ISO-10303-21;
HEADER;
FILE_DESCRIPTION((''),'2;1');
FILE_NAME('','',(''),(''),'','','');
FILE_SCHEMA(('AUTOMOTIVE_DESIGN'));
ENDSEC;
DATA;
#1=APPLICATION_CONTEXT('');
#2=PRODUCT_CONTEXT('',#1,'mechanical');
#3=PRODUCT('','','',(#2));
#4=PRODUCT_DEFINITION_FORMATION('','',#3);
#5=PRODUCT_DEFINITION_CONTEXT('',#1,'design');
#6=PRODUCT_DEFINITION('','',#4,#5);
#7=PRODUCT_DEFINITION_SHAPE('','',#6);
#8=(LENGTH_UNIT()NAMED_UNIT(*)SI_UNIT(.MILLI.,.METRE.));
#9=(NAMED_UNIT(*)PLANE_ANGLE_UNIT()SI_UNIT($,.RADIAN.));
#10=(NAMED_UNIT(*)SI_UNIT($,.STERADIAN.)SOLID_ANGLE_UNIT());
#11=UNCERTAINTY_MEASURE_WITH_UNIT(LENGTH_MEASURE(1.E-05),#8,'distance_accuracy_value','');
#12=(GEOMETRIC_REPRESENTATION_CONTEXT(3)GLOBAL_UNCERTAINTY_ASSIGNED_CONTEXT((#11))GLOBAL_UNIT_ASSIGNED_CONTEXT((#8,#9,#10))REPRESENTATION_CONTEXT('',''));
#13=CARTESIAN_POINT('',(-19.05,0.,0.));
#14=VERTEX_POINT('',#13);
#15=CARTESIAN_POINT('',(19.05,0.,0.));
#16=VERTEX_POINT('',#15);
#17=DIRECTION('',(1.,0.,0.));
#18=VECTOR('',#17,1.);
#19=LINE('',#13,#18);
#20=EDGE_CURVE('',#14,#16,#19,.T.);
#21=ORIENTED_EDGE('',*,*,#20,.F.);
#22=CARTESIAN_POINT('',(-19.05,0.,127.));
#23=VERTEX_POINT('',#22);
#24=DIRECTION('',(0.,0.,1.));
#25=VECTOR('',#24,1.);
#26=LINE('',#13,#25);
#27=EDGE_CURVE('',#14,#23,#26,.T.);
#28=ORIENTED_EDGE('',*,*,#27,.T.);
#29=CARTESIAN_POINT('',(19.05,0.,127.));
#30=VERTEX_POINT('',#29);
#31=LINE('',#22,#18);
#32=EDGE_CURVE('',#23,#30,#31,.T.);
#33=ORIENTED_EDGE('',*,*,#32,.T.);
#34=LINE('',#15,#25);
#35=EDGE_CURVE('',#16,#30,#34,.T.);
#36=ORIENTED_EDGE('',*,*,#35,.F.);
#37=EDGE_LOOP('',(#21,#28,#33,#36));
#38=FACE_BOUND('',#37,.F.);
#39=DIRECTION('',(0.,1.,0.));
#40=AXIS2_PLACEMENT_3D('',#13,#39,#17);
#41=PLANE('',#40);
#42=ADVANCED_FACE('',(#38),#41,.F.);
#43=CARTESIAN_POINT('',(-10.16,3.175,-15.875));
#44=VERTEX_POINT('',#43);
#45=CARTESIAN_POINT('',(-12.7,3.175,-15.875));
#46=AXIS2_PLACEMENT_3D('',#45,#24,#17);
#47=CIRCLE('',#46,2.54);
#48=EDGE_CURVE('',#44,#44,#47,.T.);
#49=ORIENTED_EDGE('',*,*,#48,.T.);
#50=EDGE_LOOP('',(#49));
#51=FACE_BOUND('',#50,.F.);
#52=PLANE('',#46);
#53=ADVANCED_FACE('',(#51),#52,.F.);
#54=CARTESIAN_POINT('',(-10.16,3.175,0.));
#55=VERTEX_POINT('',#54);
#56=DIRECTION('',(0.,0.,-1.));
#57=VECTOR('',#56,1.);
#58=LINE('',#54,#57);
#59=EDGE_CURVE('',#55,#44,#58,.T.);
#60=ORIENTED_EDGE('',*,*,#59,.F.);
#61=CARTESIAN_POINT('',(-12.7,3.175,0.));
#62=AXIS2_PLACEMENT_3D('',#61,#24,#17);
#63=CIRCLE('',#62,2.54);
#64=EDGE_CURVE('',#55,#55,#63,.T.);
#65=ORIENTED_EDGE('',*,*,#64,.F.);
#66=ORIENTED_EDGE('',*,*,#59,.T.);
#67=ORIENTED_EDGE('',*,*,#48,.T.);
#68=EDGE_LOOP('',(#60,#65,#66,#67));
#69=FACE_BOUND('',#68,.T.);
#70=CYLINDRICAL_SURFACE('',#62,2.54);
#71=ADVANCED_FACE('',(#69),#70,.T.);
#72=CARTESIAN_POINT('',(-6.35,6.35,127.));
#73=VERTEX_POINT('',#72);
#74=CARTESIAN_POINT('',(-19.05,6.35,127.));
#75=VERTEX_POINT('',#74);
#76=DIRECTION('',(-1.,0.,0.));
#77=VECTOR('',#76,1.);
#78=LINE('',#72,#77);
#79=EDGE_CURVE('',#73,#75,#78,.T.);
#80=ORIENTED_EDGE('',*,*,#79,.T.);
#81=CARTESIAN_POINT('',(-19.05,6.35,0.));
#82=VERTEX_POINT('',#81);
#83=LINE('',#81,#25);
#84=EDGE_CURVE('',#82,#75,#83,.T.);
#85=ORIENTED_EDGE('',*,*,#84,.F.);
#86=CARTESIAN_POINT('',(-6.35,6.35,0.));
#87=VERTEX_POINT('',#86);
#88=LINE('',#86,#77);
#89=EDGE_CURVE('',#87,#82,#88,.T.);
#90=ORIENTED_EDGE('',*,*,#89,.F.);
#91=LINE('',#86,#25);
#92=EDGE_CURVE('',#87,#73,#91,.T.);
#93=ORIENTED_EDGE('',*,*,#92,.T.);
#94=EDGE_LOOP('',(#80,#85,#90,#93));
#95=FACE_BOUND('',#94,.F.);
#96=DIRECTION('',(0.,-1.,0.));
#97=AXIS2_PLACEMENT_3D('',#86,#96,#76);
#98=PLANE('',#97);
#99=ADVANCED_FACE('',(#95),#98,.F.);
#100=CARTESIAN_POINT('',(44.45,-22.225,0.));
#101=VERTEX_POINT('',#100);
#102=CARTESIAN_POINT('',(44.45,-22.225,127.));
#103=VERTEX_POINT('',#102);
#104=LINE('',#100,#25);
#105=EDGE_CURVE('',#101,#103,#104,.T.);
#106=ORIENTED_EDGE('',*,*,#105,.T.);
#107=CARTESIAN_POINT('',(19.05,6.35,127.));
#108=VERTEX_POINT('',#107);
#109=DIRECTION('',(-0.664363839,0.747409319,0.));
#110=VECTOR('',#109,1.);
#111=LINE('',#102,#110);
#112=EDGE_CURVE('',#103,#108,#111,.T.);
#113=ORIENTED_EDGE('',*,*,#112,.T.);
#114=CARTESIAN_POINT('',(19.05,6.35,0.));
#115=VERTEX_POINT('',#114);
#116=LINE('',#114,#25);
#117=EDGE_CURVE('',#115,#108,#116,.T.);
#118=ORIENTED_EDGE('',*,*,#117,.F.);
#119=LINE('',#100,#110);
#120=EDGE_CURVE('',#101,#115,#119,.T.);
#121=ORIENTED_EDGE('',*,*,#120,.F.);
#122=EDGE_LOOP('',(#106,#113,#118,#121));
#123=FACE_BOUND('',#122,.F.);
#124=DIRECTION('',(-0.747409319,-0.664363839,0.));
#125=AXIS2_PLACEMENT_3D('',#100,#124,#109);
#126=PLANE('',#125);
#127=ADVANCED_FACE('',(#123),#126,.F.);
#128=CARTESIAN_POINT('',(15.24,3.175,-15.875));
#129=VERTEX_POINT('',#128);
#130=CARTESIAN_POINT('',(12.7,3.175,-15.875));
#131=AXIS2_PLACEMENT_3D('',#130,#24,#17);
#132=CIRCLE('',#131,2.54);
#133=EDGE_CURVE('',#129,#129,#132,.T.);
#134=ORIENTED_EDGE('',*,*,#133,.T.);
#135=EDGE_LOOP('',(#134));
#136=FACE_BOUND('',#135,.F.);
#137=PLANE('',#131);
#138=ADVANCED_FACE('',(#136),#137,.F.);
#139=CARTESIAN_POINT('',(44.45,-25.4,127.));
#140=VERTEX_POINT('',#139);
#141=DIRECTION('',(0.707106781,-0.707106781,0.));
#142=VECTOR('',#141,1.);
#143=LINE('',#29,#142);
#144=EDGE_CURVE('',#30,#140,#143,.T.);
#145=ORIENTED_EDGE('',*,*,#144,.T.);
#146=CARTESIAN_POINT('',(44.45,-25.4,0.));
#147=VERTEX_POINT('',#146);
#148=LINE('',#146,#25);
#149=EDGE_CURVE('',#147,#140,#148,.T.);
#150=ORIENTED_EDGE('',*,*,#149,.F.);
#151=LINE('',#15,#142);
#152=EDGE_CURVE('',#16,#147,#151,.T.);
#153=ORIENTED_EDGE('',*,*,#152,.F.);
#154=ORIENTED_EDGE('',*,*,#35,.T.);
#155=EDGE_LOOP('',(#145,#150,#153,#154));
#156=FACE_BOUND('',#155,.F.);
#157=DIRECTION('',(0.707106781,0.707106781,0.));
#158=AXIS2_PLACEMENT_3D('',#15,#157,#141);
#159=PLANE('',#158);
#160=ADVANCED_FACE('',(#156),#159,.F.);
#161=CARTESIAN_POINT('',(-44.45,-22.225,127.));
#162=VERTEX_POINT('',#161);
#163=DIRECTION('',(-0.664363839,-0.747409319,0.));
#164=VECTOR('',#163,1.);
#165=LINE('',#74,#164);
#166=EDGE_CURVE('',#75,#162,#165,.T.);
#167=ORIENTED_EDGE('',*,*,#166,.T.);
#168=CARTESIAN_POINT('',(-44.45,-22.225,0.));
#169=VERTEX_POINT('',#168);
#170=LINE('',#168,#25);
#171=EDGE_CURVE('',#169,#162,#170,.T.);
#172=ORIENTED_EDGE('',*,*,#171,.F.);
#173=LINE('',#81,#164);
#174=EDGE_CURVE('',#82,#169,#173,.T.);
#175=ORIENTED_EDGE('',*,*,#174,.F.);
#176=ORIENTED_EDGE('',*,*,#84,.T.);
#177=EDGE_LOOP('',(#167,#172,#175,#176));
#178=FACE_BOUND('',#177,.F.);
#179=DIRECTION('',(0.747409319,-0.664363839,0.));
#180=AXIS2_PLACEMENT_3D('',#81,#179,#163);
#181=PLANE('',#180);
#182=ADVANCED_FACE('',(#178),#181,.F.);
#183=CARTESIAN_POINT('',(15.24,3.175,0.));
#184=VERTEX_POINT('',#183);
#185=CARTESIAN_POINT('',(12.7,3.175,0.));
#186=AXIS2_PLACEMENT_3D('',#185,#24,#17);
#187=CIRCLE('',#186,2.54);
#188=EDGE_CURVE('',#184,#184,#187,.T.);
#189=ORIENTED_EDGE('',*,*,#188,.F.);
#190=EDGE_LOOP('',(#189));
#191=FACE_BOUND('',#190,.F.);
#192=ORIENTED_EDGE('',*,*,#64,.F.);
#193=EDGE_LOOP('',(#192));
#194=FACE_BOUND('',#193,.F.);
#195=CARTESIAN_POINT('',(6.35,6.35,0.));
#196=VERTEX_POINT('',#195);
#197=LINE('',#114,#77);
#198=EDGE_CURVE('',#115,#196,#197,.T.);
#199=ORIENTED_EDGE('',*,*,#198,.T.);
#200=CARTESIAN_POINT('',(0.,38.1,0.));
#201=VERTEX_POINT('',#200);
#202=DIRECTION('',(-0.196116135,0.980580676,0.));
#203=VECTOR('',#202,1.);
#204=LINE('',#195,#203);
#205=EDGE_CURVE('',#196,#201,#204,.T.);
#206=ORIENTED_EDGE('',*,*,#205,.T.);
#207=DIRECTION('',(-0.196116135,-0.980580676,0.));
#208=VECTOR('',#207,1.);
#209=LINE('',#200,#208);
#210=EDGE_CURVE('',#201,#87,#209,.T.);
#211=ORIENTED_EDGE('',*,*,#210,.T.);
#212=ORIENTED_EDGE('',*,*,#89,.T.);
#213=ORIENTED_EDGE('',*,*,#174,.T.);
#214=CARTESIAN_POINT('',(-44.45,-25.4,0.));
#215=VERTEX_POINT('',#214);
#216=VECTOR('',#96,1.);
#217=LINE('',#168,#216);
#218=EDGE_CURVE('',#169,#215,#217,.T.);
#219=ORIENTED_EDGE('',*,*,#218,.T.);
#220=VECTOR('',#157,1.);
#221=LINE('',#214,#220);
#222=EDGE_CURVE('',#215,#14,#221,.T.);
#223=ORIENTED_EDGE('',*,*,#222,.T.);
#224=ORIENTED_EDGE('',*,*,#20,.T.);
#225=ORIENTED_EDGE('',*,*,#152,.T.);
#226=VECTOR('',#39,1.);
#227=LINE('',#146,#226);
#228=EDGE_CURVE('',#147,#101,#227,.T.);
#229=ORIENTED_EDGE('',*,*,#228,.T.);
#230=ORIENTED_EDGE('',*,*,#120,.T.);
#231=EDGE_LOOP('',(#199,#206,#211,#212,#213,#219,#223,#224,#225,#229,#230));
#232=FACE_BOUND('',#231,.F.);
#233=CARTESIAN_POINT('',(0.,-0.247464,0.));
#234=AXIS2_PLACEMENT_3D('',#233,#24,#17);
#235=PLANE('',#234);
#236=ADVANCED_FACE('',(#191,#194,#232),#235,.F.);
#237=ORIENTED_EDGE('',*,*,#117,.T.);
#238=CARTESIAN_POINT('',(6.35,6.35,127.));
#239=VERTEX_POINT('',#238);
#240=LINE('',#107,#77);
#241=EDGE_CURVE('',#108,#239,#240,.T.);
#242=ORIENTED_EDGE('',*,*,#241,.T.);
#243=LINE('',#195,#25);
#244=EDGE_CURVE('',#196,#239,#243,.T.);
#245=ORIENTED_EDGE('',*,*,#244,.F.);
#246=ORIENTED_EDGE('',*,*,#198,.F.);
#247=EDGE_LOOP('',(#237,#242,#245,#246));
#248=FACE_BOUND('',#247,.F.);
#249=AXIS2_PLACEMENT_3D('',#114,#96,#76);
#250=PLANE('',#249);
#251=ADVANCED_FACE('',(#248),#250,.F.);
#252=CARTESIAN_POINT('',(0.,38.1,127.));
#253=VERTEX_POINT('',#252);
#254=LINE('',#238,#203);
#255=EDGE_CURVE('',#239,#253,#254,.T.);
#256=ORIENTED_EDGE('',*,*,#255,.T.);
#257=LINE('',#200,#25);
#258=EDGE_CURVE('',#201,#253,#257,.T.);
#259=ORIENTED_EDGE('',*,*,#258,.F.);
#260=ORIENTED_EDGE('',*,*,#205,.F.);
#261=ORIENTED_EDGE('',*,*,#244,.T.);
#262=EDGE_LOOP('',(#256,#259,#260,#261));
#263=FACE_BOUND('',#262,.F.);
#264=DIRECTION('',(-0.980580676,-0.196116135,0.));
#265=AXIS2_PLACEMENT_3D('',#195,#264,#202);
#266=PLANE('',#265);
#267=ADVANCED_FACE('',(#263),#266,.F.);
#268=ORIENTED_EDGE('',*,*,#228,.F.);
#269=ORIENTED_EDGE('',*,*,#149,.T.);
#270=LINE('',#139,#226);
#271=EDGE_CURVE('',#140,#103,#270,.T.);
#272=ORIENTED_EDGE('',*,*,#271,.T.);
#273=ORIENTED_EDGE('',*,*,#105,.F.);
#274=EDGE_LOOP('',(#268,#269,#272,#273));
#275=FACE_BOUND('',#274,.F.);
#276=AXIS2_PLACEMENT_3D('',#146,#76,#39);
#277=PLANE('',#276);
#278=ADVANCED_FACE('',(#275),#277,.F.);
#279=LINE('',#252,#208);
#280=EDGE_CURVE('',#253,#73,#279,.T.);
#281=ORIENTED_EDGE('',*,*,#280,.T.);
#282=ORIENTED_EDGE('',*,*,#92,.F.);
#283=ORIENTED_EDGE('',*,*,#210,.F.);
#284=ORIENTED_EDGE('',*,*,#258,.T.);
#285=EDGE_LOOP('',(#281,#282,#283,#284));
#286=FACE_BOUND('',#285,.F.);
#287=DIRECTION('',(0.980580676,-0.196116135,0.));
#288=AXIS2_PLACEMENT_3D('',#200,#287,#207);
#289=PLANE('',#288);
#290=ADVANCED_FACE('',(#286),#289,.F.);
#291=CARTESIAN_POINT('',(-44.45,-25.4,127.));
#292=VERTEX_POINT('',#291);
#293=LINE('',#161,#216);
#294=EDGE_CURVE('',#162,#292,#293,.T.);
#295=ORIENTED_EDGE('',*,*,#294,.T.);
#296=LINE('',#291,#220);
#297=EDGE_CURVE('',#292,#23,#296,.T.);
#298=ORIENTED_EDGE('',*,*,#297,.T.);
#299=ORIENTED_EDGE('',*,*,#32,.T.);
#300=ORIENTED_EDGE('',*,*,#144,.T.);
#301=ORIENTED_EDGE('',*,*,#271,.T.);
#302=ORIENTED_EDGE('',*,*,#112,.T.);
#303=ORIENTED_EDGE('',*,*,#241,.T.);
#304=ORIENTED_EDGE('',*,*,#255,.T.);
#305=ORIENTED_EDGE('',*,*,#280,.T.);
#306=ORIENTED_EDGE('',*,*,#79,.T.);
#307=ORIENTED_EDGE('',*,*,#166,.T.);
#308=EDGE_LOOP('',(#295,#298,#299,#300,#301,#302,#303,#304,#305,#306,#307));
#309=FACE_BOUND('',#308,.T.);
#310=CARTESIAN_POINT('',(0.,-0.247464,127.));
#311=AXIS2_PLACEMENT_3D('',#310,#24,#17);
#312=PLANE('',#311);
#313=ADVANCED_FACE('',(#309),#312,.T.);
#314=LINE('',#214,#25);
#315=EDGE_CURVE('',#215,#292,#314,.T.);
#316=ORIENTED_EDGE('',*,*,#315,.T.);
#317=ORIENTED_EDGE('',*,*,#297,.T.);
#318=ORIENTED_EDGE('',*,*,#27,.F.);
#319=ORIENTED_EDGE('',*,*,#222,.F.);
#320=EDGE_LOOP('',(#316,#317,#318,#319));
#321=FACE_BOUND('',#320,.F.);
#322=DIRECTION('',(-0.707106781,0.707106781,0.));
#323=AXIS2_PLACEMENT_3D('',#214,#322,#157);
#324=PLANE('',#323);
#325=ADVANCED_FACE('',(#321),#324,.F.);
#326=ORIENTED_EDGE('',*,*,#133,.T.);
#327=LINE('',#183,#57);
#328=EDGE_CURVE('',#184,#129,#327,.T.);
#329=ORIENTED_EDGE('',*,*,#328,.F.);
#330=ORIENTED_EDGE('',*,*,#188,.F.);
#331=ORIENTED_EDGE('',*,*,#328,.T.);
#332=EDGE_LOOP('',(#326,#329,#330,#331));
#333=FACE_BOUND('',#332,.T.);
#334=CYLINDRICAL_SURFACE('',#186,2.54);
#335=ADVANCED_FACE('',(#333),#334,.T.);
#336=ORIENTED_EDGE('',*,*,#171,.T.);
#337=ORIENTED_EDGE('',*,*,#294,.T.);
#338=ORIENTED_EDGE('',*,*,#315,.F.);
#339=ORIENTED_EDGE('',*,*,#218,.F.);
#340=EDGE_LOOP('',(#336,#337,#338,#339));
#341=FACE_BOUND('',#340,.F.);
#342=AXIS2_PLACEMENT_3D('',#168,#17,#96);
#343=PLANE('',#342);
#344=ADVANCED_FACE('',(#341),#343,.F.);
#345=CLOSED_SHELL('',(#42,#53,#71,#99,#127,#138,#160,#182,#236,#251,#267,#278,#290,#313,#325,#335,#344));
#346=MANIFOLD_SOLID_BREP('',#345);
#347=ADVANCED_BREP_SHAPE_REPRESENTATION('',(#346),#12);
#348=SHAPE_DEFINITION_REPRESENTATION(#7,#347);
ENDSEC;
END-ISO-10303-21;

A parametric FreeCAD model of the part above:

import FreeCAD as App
import Part
import Sketcher
from FreeCAD import Vector
Q = App.Units.Quantity


def add_polygon(sketch, points):
    """Adds a closed chain of lines whose ends are joined by coincident constraints."""
    first, n = sketch.GeometryCount, len(points)
    for a, b in zip(points, points[1:] + points[:1]):
        sketch.addGeometry(Part.LineSegment(App.Vector(*a, 0), App.Vector(*b, 0)), False)
    for i in range(n):
        sketch.addConstraint(Sketcher.Constraint("Coincident", first + i, 2, first + (i + 1) % n, 1))

doc = App.newDocument("Part")
body = doc.addObject("PartDesign::Body", "Body")

# Sketch on XY plane
sketch1 = doc.addObject("Sketcher::SketchObject", "Sketch")
body.addObject(sketch1)
sketch1.AttachmentSupport = (doc.XY_Plane, [""])
sketch1.MapMode = "FlatFace"
add_polygon(sketch1, [(-19.1, 0), (19.1, 0), (44.5, -25.4), (44.5, -22.2), (19.1, 6.3), (6.3, 6.3), (0, 38.1), (-6.3, 6.3), (-19.1, 6.3), (-44.5, -22.2), (-44.5, -25.4)])  # lines 0-10
sketch1.addConstraint(Sketcher.Constraint("Horizontal", 0))
sketch1.addConstraint(Sketcher.Constraint("Vertical", 2))
sketch1.addConstraint(Sketcher.Constraint("Horizontal", 4))
sketch1.addConstraint(Sketcher.Constraint("Horizontal", 7))
sketch1.addConstraint(Sketcher.Constraint("Vertical", 9))
sketch1.addConstraint(Sketcher.Constraint("Symmetric", 0, 2, 10, 2, -1, 1))
sketch1.addConstraint(Sketcher.Constraint("Symmetric", 4, 2, 6, 2, -2))
sketch1.addConstraint(Sketcher.Constraint("Symmetric", 2, 2, 8, 2, -2))
sketch1.addConstraint(Sketcher.Constraint("PointOnObject", 5, 2, -2))
sketch1.addConstraint(Sketcher.Constraint("Perpendicular", 1, 10))
sketch1.addConstraint(Sketcher.Constraint("Horizontal", 1, 2, 9, 2))
sketch1.addConstraint(Sketcher.Constraint("Vertical", 0, 2, 3, 2))
sketch1.addConstraint(Sketcher.Constraint("Vertical", 7, 2, 10, 2))
sketch1.addConstraint(Sketcher.Constraint("DistanceX", 0, 1, 0, 2, Q("1.5 in")))
sketch1.addConstraint(Sketcher.Constraint("DistanceX", 4, 2, 4, 1, Q("0.5 in")))
sketch1.addConstraint(Sketcher.Constraint("DistanceY", 1, 2, -1, 1, Q("1 in")))
sketch1.addConstraint(Sketcher.Constraint("DistanceY", -1, 1, 5, 2, Q("1.5 in")))
sketch1.addConstraint(Sketcher.Constraint("DistanceY", 2, 1, 2, 2, Q("0.125 in")))
sketch1.addConstraint(Sketcher.Constraint("DistanceY", -1, 1, 3, 2, Q("0.25 in")))
pad1 = doc.addObject("PartDesign::Pad", "Pad")
body.addObject(pad1)
pad1.Profile = sketch1
pad1.Length = Q("5 in")

# Sketch on XY plane
sketch2 = doc.addObject("Sketcher::SketchObject", "Sketch001")
body.addObject(sketch2)
sketch2.AttachmentSupport = (doc.XY_Plane, [""])
sketch2.MapMode = "FlatFace"
sketch2.addGeometry(Part.Circle(Vector(-12.7, 3.2, 0), Vector(0, 0, 1), 2.5), False)
sketch2.addGeometry(Part.Circle(Vector(12.7, 3.2, 0), Vector(0, 0, 1), 2.5), False)
sketch2.addConstraint(Sketcher.Constraint("Equal", 0, 1))
sketch2.addConstraint(Sketcher.Constraint("Symmetric", 0, 3, 1, 3, -2))
sketch2.addConstraint(Sketcher.Constraint("Diameter", 0, Q("0.2 in")))
sketch2.addConstraint(Sketcher.Constraint("DistanceX", 0, 3, 1, 3, Q("1 in")))
sketch2.addConstraint(Sketcher.Constraint("DistanceY", -1, 1, 0, 3, Q("0.125 in")))
pad2 = doc.addObject("PartDesign::Pad", "Pad001")
body.addObject(pad2)
pad2.Profile = sketch2
pad2.Length = Q("0.625 in")
pad2.Reversed = True

doc.recompute()
